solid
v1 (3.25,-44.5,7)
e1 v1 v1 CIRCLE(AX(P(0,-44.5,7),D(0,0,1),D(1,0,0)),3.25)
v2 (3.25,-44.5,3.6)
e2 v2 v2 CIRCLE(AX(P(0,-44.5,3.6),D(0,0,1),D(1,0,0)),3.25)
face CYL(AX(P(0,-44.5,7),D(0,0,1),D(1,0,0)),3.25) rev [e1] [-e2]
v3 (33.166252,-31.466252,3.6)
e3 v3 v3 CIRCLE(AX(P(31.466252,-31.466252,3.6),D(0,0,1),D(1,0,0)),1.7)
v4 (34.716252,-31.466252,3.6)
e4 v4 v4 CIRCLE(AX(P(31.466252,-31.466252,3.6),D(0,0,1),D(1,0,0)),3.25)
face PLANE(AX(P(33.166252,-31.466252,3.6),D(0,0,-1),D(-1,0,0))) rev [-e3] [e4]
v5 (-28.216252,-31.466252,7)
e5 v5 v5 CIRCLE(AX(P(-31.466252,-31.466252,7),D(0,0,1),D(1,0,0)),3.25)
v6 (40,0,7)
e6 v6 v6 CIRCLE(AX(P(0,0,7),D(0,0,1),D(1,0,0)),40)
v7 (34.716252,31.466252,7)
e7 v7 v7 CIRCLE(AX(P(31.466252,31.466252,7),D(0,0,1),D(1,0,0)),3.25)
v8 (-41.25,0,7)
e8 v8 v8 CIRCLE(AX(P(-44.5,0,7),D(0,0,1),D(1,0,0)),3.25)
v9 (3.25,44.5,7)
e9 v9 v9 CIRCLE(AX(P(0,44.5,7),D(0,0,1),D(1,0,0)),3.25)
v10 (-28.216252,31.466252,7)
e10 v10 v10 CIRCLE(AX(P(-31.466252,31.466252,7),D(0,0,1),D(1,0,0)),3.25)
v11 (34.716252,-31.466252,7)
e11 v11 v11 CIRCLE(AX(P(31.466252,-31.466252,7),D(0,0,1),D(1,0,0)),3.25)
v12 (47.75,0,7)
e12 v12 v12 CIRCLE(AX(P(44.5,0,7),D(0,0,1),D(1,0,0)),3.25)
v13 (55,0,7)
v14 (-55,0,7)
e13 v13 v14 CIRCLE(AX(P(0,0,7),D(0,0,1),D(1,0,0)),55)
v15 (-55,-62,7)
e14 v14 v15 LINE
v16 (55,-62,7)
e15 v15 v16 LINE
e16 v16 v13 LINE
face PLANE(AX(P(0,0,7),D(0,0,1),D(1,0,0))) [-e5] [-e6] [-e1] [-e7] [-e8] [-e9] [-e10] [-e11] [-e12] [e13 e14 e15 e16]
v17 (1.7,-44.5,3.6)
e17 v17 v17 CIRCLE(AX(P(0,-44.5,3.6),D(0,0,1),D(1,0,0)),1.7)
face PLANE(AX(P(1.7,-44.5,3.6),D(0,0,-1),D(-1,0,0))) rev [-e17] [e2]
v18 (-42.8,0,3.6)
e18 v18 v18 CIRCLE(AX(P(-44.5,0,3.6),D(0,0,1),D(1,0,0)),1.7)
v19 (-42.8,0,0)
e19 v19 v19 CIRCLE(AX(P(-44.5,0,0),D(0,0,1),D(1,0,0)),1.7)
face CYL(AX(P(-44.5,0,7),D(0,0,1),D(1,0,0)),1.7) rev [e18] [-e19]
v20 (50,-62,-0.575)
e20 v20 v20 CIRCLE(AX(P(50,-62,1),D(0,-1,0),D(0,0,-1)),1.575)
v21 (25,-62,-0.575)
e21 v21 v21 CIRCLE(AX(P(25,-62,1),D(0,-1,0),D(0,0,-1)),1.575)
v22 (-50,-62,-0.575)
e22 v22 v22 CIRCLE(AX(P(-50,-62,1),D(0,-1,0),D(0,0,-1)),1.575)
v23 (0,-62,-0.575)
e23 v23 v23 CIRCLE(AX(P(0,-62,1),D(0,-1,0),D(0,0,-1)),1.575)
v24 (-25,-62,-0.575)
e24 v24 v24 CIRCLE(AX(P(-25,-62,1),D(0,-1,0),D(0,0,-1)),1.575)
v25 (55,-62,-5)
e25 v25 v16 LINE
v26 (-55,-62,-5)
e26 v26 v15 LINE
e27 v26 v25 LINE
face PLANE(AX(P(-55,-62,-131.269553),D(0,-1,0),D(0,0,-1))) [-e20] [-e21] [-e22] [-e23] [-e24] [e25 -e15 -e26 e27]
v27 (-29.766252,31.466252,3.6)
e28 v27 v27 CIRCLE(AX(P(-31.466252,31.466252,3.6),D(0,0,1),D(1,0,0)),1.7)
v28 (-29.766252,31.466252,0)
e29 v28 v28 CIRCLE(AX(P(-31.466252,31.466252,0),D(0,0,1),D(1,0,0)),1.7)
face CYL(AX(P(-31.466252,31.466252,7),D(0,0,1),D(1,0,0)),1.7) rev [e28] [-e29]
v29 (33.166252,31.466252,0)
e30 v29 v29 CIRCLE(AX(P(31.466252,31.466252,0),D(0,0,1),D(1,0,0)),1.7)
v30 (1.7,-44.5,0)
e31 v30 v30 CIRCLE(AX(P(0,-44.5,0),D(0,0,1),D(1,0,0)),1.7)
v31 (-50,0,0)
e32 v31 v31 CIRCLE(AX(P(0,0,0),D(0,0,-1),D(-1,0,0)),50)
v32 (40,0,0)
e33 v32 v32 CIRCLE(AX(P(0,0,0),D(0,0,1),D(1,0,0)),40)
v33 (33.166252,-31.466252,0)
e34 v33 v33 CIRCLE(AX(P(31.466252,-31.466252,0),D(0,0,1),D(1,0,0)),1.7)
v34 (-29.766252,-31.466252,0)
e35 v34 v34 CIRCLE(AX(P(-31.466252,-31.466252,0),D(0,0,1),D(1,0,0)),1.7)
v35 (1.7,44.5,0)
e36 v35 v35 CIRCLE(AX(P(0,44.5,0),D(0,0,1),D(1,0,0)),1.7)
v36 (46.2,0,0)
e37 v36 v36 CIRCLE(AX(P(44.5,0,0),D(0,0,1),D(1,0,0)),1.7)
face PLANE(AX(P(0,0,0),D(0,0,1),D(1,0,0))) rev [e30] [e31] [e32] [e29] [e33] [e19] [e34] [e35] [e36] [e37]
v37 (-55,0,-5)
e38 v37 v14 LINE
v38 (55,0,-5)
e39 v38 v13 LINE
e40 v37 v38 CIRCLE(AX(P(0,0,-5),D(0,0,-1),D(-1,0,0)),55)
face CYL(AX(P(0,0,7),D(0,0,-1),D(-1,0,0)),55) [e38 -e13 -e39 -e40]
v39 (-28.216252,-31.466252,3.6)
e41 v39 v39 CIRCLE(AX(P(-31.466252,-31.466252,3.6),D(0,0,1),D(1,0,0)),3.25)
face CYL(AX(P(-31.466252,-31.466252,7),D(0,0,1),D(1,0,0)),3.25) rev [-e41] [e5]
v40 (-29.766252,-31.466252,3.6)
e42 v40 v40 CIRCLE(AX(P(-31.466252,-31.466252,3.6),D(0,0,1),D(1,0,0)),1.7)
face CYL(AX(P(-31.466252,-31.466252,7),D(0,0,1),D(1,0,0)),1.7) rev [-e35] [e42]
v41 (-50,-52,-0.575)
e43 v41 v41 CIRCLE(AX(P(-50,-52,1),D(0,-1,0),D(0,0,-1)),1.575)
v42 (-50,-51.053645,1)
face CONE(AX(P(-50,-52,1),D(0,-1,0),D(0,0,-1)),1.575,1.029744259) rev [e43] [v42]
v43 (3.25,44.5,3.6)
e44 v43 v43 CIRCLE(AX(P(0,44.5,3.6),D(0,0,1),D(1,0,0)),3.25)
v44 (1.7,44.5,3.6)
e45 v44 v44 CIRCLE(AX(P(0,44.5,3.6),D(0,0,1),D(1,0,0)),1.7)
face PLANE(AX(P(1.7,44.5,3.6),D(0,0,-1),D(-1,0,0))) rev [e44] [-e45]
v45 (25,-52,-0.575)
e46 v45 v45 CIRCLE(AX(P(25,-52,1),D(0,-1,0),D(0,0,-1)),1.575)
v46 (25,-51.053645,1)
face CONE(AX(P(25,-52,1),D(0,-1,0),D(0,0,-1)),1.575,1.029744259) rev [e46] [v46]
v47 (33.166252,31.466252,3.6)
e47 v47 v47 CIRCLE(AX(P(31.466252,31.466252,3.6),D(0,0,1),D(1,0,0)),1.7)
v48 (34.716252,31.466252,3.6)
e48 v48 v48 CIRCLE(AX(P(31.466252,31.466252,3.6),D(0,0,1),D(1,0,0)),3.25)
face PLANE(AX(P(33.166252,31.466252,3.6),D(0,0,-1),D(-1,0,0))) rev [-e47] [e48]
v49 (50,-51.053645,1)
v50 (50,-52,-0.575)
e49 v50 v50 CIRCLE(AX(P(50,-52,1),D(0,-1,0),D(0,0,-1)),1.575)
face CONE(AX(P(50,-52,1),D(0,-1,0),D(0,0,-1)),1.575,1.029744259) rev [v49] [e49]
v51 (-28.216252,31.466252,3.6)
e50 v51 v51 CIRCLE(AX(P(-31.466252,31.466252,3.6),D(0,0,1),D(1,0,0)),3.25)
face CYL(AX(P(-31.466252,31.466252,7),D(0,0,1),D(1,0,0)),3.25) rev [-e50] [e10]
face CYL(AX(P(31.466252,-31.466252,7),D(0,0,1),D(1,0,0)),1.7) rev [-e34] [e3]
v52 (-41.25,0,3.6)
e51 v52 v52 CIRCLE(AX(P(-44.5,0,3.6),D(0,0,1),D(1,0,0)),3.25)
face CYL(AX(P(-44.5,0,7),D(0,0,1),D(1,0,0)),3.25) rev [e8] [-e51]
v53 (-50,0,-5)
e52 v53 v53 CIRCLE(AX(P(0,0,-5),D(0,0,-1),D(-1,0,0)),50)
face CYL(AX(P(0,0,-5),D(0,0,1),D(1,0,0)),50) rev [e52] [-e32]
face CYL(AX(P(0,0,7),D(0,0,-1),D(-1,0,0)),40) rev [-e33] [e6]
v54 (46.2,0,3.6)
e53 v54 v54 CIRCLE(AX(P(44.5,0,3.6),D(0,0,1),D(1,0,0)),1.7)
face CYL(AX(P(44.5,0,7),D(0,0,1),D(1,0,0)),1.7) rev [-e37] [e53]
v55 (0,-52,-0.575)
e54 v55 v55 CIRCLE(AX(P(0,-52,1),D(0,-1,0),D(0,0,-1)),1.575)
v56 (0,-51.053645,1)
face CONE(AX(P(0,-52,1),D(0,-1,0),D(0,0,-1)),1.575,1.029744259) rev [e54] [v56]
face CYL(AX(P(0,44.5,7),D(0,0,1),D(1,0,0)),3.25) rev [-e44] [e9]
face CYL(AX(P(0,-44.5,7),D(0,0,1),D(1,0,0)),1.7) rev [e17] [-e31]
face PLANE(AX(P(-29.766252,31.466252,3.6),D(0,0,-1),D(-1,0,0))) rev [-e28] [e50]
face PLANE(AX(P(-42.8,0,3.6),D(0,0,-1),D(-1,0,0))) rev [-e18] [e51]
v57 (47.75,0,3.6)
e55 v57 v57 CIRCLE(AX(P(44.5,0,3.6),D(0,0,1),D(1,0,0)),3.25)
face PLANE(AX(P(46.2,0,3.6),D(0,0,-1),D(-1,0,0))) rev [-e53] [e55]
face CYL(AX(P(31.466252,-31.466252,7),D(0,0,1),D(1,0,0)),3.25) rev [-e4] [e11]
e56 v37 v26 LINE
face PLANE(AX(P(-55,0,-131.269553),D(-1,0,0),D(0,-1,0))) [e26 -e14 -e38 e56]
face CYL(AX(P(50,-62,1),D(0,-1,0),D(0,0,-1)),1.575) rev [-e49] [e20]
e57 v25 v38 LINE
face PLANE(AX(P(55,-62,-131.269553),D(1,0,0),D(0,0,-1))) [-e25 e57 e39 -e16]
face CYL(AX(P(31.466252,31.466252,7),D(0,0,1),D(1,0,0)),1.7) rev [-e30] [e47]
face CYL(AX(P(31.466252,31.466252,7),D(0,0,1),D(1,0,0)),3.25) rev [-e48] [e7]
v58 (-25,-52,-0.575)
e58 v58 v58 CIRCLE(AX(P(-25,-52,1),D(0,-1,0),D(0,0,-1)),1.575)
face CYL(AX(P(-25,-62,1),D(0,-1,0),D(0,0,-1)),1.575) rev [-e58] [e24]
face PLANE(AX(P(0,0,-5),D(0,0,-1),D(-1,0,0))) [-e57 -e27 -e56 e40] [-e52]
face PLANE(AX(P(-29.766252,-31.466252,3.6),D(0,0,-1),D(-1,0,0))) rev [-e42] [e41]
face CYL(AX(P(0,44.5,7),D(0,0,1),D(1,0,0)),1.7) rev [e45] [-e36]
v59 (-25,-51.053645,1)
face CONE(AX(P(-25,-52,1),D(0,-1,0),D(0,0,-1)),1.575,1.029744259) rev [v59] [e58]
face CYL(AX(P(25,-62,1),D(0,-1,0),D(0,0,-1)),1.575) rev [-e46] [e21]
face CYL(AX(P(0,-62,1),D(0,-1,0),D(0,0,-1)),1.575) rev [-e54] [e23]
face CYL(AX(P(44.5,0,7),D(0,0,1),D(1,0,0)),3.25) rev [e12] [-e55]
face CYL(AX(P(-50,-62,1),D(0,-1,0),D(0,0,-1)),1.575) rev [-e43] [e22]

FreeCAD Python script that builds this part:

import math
import FreeCAD as App
import Part
import Sketcher
Q = App.Units.Quantity

doc = App.newDocument("Part")
body = doc.addObject("PartDesign::Body", "Body")

# Sketch on XY plane
sketch1 = doc.addObject("Sketcher::SketchObject", "Sketch")
body.addObject(sketch1)
sketch1.AttachmentSupport = (doc.XY_Plane, [""])
sketch1.MapMode = "FlatFace"
sketch1.addGeometry([
    Part.Circle(App.Vector(0, 0, 0), App.Vector(0, 0, 1), 55),
    Part.Circle(App.Vector(0, 0, 0), App.Vector(0, 0, 1), 40),
], False)
sketch1.addConstraint([
    Sketcher.Constraint("Coincident", 0, 3, -1, 1),
    Sketcher.Constraint("Coincident", 1, 3, -1, 1),
    Sketcher.Constraint("Diameter", 0, Q("110 mm")),
    Sketcher.Constraint("Diameter", 1, Q("80 mm")),
])
pad1 = doc.addObject("PartDesign::Pad", "Pad")
body.addObject(pad1)
pad1.Profile = sketch1
pad1.Length = 7

# Sketch on XY plane
sketch2 = doc.addObject("Sketcher::SketchObject", "Sketch001")
body.addObject(sketch2)
sketch2.AttachmentSupport = (doc.XY_Plane, [""])
sketch2.MapMode = "FlatFace"
sketch2.AttachmentOffset = App.Placement(App.Vector(0, 0, 7), App.Rotation())
sketch2.addGeometry([
    Part.Circle(App.Vector(-31.5, 31.5, 0), App.Vector(0, 0, 1), 1.7),  # 0
    Part.Circle(App.Vector(0, 44.5, 0), App.Vector(0, 0, 1), 1.7),  # 1
    Part.Circle(App.Vector(31.5, 31.5, 0), App.Vector(0, 0, 1), 1.7),  # 2
    Part.Circle(App.Vector(44.5, 0, 0), App.Vector(0, 0, 1), 1.7),  # 3
    Part.Circle(App.Vector(31.5, -31.5, 0), App.Vector(0, 0, 1), 1.7),  # 4
    Part.Circle(App.Vector(0, -44.5, 0), App.Vector(0, 0, 1), 1.7),  # 5
    Part.Circle(App.Vector(-31.5, -31.5, 0), App.Vector(0, 0, 1), 1.7),  # 6
    Part.Circle(App.Vector(-44.5, 0, 0), App.Vector(0, 0, 1), 1.7),  # 7
], False)
sketch2.addConstraint([
    Sketcher.Constraint("Equal", 0, 1),
    Sketcher.Constraint("Equal", 1, 2),
    Sketcher.Constraint("Equal", 2, 3),
    Sketcher.Constraint("Equal", 3, 4),
    Sketcher.Constraint("Equal", 4, 5),
    Sketcher.Constraint("Equal", 5, 6),
    Sketcher.Constraint("Equal", 6, 7),
    Sketcher.Constraint("Symmetric", 0, 3, 4, 3, -1, 1),
    Sketcher.Constraint("Symmetric", 1, 3, 5, 3, -1, 1),
    Sketcher.Constraint("Symmetric", 2, 3, 6, 3, -1, 1),
    Sketcher.Constraint("Symmetric", 3, 3, 7, 3, -1, 1),
    Sketcher.Constraint("Symmetric", 0, 3, 2, 3, -2),
    Sketcher.Constraint("PointOnObject", 1, 3, -2),
    Sketcher.Constraint("PointOnObject", 3, 3, -1),
    Sketcher.Constraint("Diameter", 0, Q("3.4 mm")),
    Sketcher.Constraint("DistanceY", 5, 3, 1, 3, Q("89 mm")),
    Sketcher.Constraint("DistanceX", -1, 1, 3, 3, Q("44.5 mm")),
    Sketcher.Constraint("DistanceX", 0, 3, -1, 1, Q("31.466252 mm")),
    Sketcher.Constraint("DistanceY", -1, 1, 0, 3, Q("31.466252 mm")),
])
doc.recompute()
hole = doc.addObject("PartDesign::Hole", "Hole")
body.addObject(hole)
hole.Profile = sketch2
hole.ThreadType = "None"
hole.Diameter = 3.4
hole.DepthType = "ThroughAll"
hole.HoleCutType = "Counterbore"
hole.HoleCutDiameter = 6.5
hole.HoleCutDepth = 3.4

# Sketch on XY plane
sketch3 = doc.addObject("Sketcher::SketchObject", "Sketch002")
body.addObject(sketch3)
sketch3.AttachmentSupport = (doc.XY_Plane, [""])
sketch3.MapMode = "FlatFace"
sketch3.AttachmentOffset = App.Placement(App.Vector(0, 0, -5), App.Rotation())
sketch3.addGeometry([
    Part.Circle(App.Vector(0, 0, 0), App.Vector(0, 0, 1), 55),
    Part.Circle(App.Vector(0, 0, 0), App.Vector(0, 0, 1), 50),
], False)
sketch3.addConstraint([
    Sketcher.Constraint("Coincident", 0, 3, -1, 1),
    Sketcher.Constraint("Coincident", 1, 3, -1, 1),
    Sketcher.Constraint("Diameter", 0, Q("110 mm")),
    Sketcher.Constraint("Diameter", 1, Q("100 mm")),
])
pad2 = doc.addObject("PartDesign::Pad", "Pad001")
body.addObject(pad2)
pad2.Profile = sketch3
pad2.Length = 5

# Sketch on XY plane
sketch4 = doc.addObject("Sketcher::SketchObject", "Sketch003")
body.addObject(sketch4)
sketch4.AttachmentSupport = (doc.XY_Plane, [""])
sketch4.MapMode = "FlatFace"
sketch4.AttachmentOffset = App.Placement(App.Vector(0, 0, -5), App.Rotation())
sketch4.addGeometry([
    Part.LineSegment(App.Vector(-55, 0, 0), App.Vector(-55, -62, 0)),
    Part.LineSegment(App.Vector(-55, -62, 0), App.Vector(55, -62, 0)),
    Part.LineSegment(App.Vector(55, -62, 0), App.Vector(55, 0, 0)),
    Part.ArcOfCircle(Part.Circle(App.Vector(0, 0, 0), App.Vector(0, 0, 1), 55), math.radians(180), math.radians(360)),
], False)
sketch4.addConstraint([
    Sketcher.Constraint("Coincident", 0, 2, 1, 1),
    Sketcher.Constraint("Coincident", 1, 2, 2, 1),
    Sketcher.Constraint("Tangent", 2, 2, 3, 2),
    Sketcher.Constraint("Tangent", 3, 1, 0, 1),
    Sketcher.Constraint("Vertical", 0),
    Sketcher.Constraint("Horizontal", 1),
    Sketcher.Constraint("Vertical", 2),
    Sketcher.Constraint("Coincident", 3, 3, -1, 1),
    Sketcher.Constraint("Radius", 3, Q("55 mm")),
    Sketcher.Constraint("DistanceY", 0, 2, 0, 1, Q("62 mm")),
])
pad3 = doc.addObject("PartDesign::Pad", "Pad002")
body.addObject(pad3)
pad3.Profile = sketch4
pad3.Length = 12

# Sketch on XZ plane
sketch5 = doc.addObject("Sketcher::SketchObject", "Sketch004")
body.addObject(sketch5)
sketch5.AttachmentSupport = (doc.XZ_Plane, [""])
sketch5.MapMode = "FlatFace"
sketch5.AttachmentOffset = App.Placement(App.Vector(0, 0, 62), App.Rotation())
sketch5.addGeometry([
    Part.Circle(App.Vector(50, 1, 0), App.Vector(0, 0, 1), 1.6),  # 0
    Part.Circle(App.Vector(0, 1, 0), App.Vector(0, 0, 1), 1.6),  # 1
    Part.Circle(App.Vector(-25, 1, 0), App.Vector(0, 0, 1), 1.6),  # 2
    Part.Circle(App.Vector(-50, 1, 0), App.Vector(0, 0, 1), 1.6),  # 3
    Part.Circle(App.Vector(25, 1, 0), App.Vector(0, 0, 1), 1.6),  # 4
], False)
sketch5.addConstraint([
    Sketcher.Constraint("Equal", 0, 1),
    Sketcher.Constraint("Equal", 1, 2),
    Sketcher.Constraint("Equal", 2, 3),
    Sketcher.Constraint("Equal", 3, 4),
    Sketcher.Constraint("Symmetric", 0, 3, 3, 3, -2),
    Sketcher.Constraint("Symmetric", 2, 3, 4, 3, -2),
    Sketcher.Constraint("PointOnObject", 1, 3, -2),
    Sketcher.Constraint("Horizontal", 0, 3, 1, 3),
    Sketcher.Constraint("Horizontal", 1, 3, 2, 3),
    Sketcher.Constraint("Diameter", 0, Q("3.15 mm")),
    Sketcher.Constraint("DistanceX", -1, 1, 0, 3, Q("50 mm")),
    Sketcher.Constraint("DistanceY", -1, 1, 0, 3, Q("1 mm")),
    Sketcher.Constraint("DistanceX", 2, 3, -1, 1, Q("25 mm")),
])
doc.recompute()
hole2 = doc.addObject("PartDesign::Hole", "Hole001")
body.addObject(hole2)
hole2.Profile = sketch5
hole2.ThreadType = "None"
hole2.Diameter = 3.15
hole2.DepthType = "Dimension"
hole2.Depth = 10
hole2.DrillPoint = "Angled"
hole2.DrillPointAngle = 118

doc.recompute()
